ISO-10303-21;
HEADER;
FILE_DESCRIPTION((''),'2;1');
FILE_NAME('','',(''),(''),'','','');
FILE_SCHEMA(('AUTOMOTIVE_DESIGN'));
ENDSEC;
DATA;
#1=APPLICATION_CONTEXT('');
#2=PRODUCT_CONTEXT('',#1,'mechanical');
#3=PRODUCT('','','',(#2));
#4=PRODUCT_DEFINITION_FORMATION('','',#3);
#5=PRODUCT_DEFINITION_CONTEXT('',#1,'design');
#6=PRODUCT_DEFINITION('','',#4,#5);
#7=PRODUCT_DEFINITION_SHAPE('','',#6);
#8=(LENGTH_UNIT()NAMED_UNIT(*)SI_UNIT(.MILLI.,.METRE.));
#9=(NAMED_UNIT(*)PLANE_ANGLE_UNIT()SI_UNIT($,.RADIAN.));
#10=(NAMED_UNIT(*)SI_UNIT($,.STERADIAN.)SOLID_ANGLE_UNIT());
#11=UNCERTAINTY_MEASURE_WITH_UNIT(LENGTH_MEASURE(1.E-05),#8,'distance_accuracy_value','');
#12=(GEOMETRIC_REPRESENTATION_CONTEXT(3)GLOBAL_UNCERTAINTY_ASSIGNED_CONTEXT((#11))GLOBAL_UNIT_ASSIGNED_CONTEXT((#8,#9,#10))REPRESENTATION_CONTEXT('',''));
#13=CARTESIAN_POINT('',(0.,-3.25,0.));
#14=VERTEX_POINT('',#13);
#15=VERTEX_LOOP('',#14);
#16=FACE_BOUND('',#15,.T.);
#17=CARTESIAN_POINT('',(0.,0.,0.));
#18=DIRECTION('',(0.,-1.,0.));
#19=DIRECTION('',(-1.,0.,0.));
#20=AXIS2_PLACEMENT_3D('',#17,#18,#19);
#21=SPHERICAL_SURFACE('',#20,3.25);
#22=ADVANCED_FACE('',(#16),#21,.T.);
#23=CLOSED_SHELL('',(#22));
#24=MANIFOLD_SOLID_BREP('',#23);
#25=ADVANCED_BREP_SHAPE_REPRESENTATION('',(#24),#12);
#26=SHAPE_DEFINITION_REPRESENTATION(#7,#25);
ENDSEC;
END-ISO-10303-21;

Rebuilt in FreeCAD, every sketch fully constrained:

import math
import FreeCAD as App
import Part
import Sketcher

V = App.Vector

doc = App.newDocument("Part")
params = doc.addObject("Spreadsheet::Sheet", "Params")
for row, (alias, value) in enumerate([
    ("sketch1_radius", "3.25 mm"),
    ("revolution_angle", "360 deg"),
], start=1):
    params.set(f"A{row}", alias)
    params.set(f"B{row}", "=" + value)
    params.setAlias(f"B{row}", alias)

body = doc.addObject("PartDesign::Body", "Body")

# Sketch on XY plane
sketch1 = body.newObject("Sketcher::SketchObject", "Sketch")
sketch1.AttachmentSupport = (doc.getObject("XY_Plane"), [""])
sketch1.MapMode = "FlatFace"
sketch1.addGeometry([
    Part.LineSegment(V(0, 3.25, 0), V(0, -3.25, 0)),
    Part.ArcOfCircle(Part.Circle(V(0, 0, 0), V(0, 0, 1), 3.25), math.radians(-90), math.radians(90)),
], False)
sketch1.addConstraint([
    Sketcher.Constraint("Coincident", 0, 1, 1, 2),
    Sketcher.Constraint("Coincident", 1, 1, 0, 2),
    Sketcher.Constraint("Vertical", 0),
    Sketcher.Constraint("Coincident", 1, 3, -1, 1),
    Sketcher.Constraint("PointOnObject", 0, 1, -2),
    Sketcher.Constraint("Radius", 1, 3.25),
])
sketch1.setExpression("Constraints[5]", "Params.sketch1_radius")
revolution = body.newObject("PartDesign::Revolution", "Revolution")
revolution.Profile = sketch1
revolution.ReferenceAxis = (sketch1, ["V_Axis"])
revolution.setExpression("Angle", "Params.revolution_angle")

doc.recompute()
